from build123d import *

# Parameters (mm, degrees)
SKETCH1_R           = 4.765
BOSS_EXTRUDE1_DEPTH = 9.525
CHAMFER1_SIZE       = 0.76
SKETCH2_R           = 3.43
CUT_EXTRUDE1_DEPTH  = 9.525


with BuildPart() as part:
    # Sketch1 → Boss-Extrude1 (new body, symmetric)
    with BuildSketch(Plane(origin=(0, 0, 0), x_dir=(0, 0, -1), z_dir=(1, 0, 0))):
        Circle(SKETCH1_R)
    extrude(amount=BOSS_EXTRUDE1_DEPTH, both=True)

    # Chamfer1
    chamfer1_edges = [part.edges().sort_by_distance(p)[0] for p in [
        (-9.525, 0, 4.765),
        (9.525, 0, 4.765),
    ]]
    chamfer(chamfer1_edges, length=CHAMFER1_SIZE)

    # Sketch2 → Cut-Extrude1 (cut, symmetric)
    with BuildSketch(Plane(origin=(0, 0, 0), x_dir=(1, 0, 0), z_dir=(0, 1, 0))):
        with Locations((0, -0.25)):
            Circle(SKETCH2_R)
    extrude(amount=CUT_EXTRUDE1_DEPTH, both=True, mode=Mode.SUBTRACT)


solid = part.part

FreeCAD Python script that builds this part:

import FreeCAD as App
import Part
import Sketcher


def edges_at(feature, points):
    """Names of the edges that pass closest to the given points."""
    edges = feature.Shape.Edges
    near = lambda p: min(range(len(edges)), key=lambda i: edges[i].distToShape(Part.Vertex(*p))[0])
    return sorted({f"Edge{near(p) + 1}" for p in points})

doc = App.newDocument("Part")
params = doc.addObject("Spreadsheet::Sheet", "Params")
for row, (alias, value) in enumerate([
    ("pad1_length", "0.75 in"),
    ("chamfer_size", "0.76 mm"),
    ("pocket1_length", "0.75 in"),
], start=1):
    params.set(f"A{row}", alias)
    params.set(f"B{row}", "=" + value)
    params.setAlias(f"B{row}", alias)

body = doc.addObject("PartDesign::Body", "Body")

# Sketch on YZ plane
sketch1 = doc.addObject("Sketcher::SketchObject", "Sketch")
body.addObject(sketch1)
sketch1.AttachmentSupport = (doc.YZ_Plane, [""])
sketch1.MapMode = "FlatFace"
sketch1.addGeometry(Part.Circle(App.Vector(0, 0, 0), App.Vector(0, 0, 1), 4.8), False)
sketch1.addConstraint([
    Sketcher.Constraint("Coincident", 0, 3, -1, 1),
    Sketcher.Constraint("Diameter", 0, 9.53),
])
pad1 = doc.addObject("PartDesign::Pad", "Pad")
body.addObject(pad1)
pad1.Profile = sketch1
pad1.setExpression("Length", "Params.pad1_length")
pad1.Midplane = True
doc.recompute()

chamfer = doc.addObject("PartDesign::Chamfer", "Chamfer")
body.addObject(chamfer)
chamfer.Base = (pad1, edges_at(pad1, [(-9.525, 0, 4.765), (9.525, 0, 4.765)]))
chamfer.setExpression("Size", "Params.chamfer_size")

# Sketch on XZ plane
sketch2 = doc.addObject("Sketcher::SketchObject", "Sketch001")
body.addObject(sketch2)
sketch2.AttachmentSupport = (doc.XZ_Plane, [""])
sketch2.MapMode = "FlatFace"
sketch2.addGeometry(Part.Circle(App.Vector(0, 0.2, 0), App.Vector(0, 0, 1), 3.4), False)
sketch2.addConstraint([
    Sketcher.Constraint("PointOnObject", 0, 3, -2),
    Sketcher.Constraint("Diameter", 0, 6.86),
    Sketcher.Constraint("DistanceY", -1, 1, 0, 3, 0.25),
])
pocket1 = doc.addObject("PartDesign::Pocket", "Pocket")
body.addObject(pocket1)
pocket1.Profile = sketch2
pocket1.setExpression("Length", "Params.pocket1_length")
pocket1.Midplane = True

doc.recompute()
